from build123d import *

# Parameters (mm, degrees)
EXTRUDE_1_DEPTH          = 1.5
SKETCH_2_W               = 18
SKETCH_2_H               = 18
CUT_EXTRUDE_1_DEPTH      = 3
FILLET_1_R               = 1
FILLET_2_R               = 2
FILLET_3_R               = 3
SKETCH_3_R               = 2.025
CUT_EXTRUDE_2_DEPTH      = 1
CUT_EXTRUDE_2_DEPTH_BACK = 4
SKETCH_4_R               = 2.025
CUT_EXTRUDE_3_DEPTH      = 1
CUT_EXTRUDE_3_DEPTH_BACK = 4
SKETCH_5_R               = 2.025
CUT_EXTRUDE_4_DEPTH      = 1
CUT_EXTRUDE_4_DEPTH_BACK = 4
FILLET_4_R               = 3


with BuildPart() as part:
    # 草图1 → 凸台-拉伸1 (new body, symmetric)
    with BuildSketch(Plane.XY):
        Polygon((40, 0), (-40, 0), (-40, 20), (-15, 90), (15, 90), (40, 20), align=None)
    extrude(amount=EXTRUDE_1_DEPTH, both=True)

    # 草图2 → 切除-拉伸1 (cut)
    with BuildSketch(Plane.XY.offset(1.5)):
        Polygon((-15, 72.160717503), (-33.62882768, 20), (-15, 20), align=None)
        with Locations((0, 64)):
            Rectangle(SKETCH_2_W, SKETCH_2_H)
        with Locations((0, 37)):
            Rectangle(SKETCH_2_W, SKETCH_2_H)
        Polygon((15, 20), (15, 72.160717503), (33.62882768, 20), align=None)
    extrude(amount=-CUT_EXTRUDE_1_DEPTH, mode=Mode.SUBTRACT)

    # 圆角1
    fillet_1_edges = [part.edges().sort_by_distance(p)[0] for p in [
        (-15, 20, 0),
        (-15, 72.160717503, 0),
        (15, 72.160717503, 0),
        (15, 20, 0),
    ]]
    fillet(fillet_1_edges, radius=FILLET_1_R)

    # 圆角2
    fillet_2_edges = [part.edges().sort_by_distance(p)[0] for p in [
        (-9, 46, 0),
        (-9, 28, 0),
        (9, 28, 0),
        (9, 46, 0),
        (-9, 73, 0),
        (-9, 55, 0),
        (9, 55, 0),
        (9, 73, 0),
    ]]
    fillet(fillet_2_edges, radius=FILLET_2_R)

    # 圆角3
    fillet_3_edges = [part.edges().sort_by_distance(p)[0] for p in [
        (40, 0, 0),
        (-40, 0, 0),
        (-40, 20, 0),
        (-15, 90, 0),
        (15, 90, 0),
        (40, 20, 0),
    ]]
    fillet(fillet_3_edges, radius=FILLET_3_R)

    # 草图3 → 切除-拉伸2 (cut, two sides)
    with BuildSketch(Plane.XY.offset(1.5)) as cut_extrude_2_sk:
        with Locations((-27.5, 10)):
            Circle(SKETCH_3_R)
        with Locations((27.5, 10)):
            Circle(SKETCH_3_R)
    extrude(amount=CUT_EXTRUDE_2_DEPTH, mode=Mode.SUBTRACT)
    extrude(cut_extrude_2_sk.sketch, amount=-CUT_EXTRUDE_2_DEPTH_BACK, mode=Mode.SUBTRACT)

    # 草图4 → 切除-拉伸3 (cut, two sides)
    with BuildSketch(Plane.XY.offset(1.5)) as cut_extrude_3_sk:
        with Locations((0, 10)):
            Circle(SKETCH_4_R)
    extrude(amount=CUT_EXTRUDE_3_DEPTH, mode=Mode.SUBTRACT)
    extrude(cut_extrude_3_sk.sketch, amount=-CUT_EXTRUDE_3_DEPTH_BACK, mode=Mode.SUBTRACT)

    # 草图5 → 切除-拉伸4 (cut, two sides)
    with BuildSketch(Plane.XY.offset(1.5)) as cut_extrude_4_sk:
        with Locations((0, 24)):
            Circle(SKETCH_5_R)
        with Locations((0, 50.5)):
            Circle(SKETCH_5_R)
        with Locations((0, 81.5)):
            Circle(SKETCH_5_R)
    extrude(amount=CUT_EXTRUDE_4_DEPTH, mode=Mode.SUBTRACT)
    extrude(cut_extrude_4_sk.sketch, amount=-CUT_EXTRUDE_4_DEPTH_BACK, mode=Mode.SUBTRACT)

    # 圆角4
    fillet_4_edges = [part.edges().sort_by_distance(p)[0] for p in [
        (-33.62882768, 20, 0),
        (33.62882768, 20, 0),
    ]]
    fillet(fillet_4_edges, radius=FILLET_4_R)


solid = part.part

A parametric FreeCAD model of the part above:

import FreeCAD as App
import Part
import Sketcher
from FreeCAD import Vector


def edges_at(feature, points):
    """Names of the edges that pass closest to the given points."""
    edges = feature.Shape.Edges
    near = lambda p: min(range(len(edges)), key=lambda i: edges[i].distToShape(Part.Vertex(*p))[0])
    return sorted({f"Edge{near(p) + 1}" for p in points})


def add_polygon(sketch, points):
    """Adds a closed chain of lines whose ends are joined by coincident constraints."""
    first, n = sketch.GeometryCount, len(points)
    for a, b in zip(points, points[1:] + points[:1]):
        sketch.addGeometry(Part.LineSegment(App.Vector(*a, 0), App.Vector(*b, 0)), False)
    for i in range(n):
        sketch.addConstraint(Sketcher.Constraint("Coincident", first + i, 2, first + (i + 1) % n, 1))

doc = App.newDocument("Part")
body = doc.addObject("PartDesign::Body", "Body")

# Sketch on XY plane
sketch1 = body.newObject("Sketcher::SketchObject", "Sketch")
sketch1.AttachmentSupport = (doc.getObject("XY_Plane"), [""])
sketch1.MapMode = "FlatFace"
add_polygon(sketch1, [(-40, 0), (40, 0), (40, 20), (15, 90), (-15, 90), (-40, 20)])  # lines 0-5
sketch1.addConstraint(Sketcher.Constraint("Horizontal", 0))
sketch1.addConstraint(Sketcher.Constraint("Vertical", 1))
sketch1.addConstraint(Sketcher.Constraint("Horizontal", 3))
sketch1.addConstraint(Sketcher.Constraint("Vertical", 5))
sketch1.addConstraint(Sketcher.Constraint("Symmetric", 0, 2, 5, 2, -1, 1))
sketch1.addConstraint(Sketcher.Constraint("Horizontal", 1, 2, 4, 2))
sketch1.addConstraint(Sketcher.Constraint("Equal", 2, 4))
sketch1.addConstraint(Sketcher.Constraint("DistanceX", 0, 1, 0, 2, 80.0))
sketch1.addConstraint(Sketcher.Constraint("DistanceX", 3, 2, 3, 1, 30.0))
sketch1.addConstraint(Sketcher.Constraint("DistanceY", 1, 1, 1, 2, 20.0))
sketch1.addConstraint(Sketcher.Constraint("DistanceY", -1, 1, 2, 2, 90.0))
pad1 = body.newObject("PartDesign::Pad", "Pad")
pad1.Profile = sketch1
pad1.Length = 3
pad1.Midplane = True

# Sketch on XY plane
sketch2 = body.newObject("Sketcher::SketchObject", "Sketch001")
sketch2.AttachmentSupport = (doc.getObject("XY_Plane"), [""])
sketch2.MapMode = "FlatFace"
sketch2.AttachmentOffset = App.Placement(Vector(0, 0, 1.5), App.Rotation())
add_polygon(sketch2, [(-15, 72), (-34, 20), (-15, 20)])  # lines 0-2
add_polygon(sketch2, [(-9, 73), (-9, 55), (9, 55), (9, 73)])  # lines 3-6
add_polygon(sketch2, [(-9, 46), (-9, 28), (9, 28), (9, 46)])  # lines 7-10
add_polygon(sketch2, [(15, 72), (15, 20), (34, 20)])  # lines 11-13
sketch2.addConstraint(Sketcher.Constraint("Horizontal", 1))
sketch2.addConstraint(Sketcher.Constraint("Vertical", 2))
sketch2.addConstraint(Sketcher.Constraint("Vertical", 3))
sketch2.addConstraint(Sketcher.Constraint("Horizontal", 4))
sketch2.addConstraint(Sketcher.Constraint("Vertical", 5))
sketch2.addConstraint(Sketcher.Constraint("Horizontal", 6))
sketch2.addConstraint(Sketcher.Constraint("Vertical", 7))
sketch2.addConstraint(Sketcher.Constraint("Horizontal", 8))
sketch2.addConstraint(Sketcher.Constraint("Vertical", 9))
sketch2.addConstraint(Sketcher.Constraint("Horizontal", 10))
sketch2.addConstraint(Sketcher.Constraint("Vertical", 11))
sketch2.addConstraint(Sketcher.Constraint("Horizontal", 12))
sketch2.addConstraint(Sketcher.Constraint("Symmetric", 1, 2, 11, 2, -2))
sketch2.addConstraint(Sketcher.Constraint("Horizontal", 2, 2, 13, 2))
sketch2.addConstraint(Sketcher.Constraint("Vertical", 6, 2, 7, 2))
sketch2.addConstraint(Sketcher.Constraint("Vertical", 5, 2, 8, 2))
sketch2.addConstraint(Sketcher.Constraint("Equal", 1, 12))
sketch2.addConstraint(Sketcher.Constraint("Equal", 10, 3))
sketch2.addConstraint(Sketcher.Constraint("Equal", 5, 7))
sketch2.addConstraint(Sketcher.Constraint("DistanceX", 4, 1, 4, 2, 18.0))
sketch2.addConstraint(Sketcher.Constraint("DistanceY", -1, 1, 0, 2, 20.0))
sketch2.addConstraint(Sketcher.Constraint("DistanceX", 1, 2, -1, 1, 15.0))
sketch2.addConstraint(Sketcher.Constraint("DistanceX", 3, 2, -1, 1, 9.0))
sketch2.addConstraint(Sketcher.Constraint("DistanceY", -1, 1, 3, 2, 55.0))
sketch2.addConstraint(Sketcher.Constraint("DistanceY", -1, 1, 7, 2, 28.0))
sketch2.addConstraint(Sketcher.Constraint("DistanceX", 1, 1, 1, 2, 18.628828))
sketch2.addConstraint(Sketcher.Constraint("DistanceY", 2, 1, 2, 2, 52.160718))
pocket1 = body.newObject("PartDesign::Pocket", "Pocket")
pocket1.Profile = sketch2
pocket1.Length = 3
doc.recompute()

fillet = body.newObject("PartDesign::Fillet", "Fillet")
fillet.Base = (pocket1, edges_at(pocket1, [
    (-15, 20, 0),
    (-15, 72.161, 0),
    (15, 72.161, 0),
    (15, 20, 0),
]))
fillet.Radius = 1
doc.recompute()

fillet2 = body.newObject("PartDesign::Fillet", "Fillet001")
fillet2.Base = (fillet, edges_at(fillet, [
    (-9, 46, 0),
    (-9, 28, 0),
    (9, 28, 0),
    (9, 46, 0),
    (-9, 73, 0),
    (-9, 55, 0),
    (9, 55, 0),
    (9, 73, 0),
]))
fillet2.Radius = 2
doc.recompute()

fillet3 = body.newObject("PartDesign::Fillet", "Fillet002")
fillet3.Base = (fillet2, edges_at(fillet2, [
    (40, 0, 0),
    (-40, 0, 0),
    (-40, 20, 0),
    (-15, 90, 0),
    (15, 90, 0),
    (40, 20, 0),
]))
fillet3.Radius = 3

# Sketch on XY plane
sketch3 = body.newObject("Sketcher::SketchObject", "Sketch002")
sketch3.AttachmentSupport = (doc.getObject("XY_Plane"), [""])
sketch3.MapMode = "FlatFace"
sketch3.AttachmentOffset = App.Placement(Vector(0, 0, 1.5), App.Rotation())
sketch3.addGeometry(Part.Circle(Vector(-27.5, 10, 0), Vector(0, 0, 1), 2), False)
sketch3.addGeometry(Part.Circle(Vector(27.5, 10, 0), Vector(0, 0, 1), 2), False)
sketch3.addConstraint(Sketcher.Constraint("Equal", 0, 1))
sketch3.addConstraint(Sketcher.Constraint("Symmetric", 0, 3, 1, 3, -2))
sketch3.addConstraint(Sketcher.Constraint("Diameter", 0, 4.05))
sketch3.addConstraint(Sketcher.Constraint("DistanceY", -1, 1, 0, 3, 10.0))
sketch3.addConstraint(Sketcher.Constraint("DistanceX", 0, 3, 1, 3, 55.0))
pocket2 = body.newObject("PartDesign::Pocket", "Pocket001")
pocket2.Profile = sketch3
pocket2.Type = "ThroughAll"
pocket2.Midplane = True

# Sketch on XY plane
sketch4 = body.newObject("Sketcher::SketchObject", "Sketch003")
sketch4.AttachmentSupport = (doc.getObject("XY_Plane"), [""])
sketch4.MapMode = "FlatFace"
sketch4.AttachmentOffset = App.Placement(Vector(0, 0, 1.5), App.Rotation())
sketch4.addGeometry(Part.Circle(Vector(0, 10, 0), Vector(0, 0, 1), 2), False)
sketch4.addConstraint(Sketcher.Constraint("PointOnObject", 0, 3, -2))
sketch4.addConstraint(Sketcher.Constraint("Diameter", 0, 4.05))
sketch4.addConstraint(Sketcher.Constraint("DistanceY", -1, 1, 0, 3, 10.0))
pocket3 = body.newObject("PartDesign::Pocket", "Pocket002")
pocket3.Profile = sketch4
pocket3.Type = "ThroughAll"
pocket3.Midplane = True

# Sketch on XY plane
sketch5 = body.newObject("Sketcher::SketchObject", "Sketch004")
sketch5.AttachmentSupport = (doc.getObject("XY_Plane"), [""])
sketch5.MapMode = "FlatFace"
sketch5.AttachmentOffset = App.Placement(Vector(0, 0, 1.5), App.Rotation())
sketch5.addGeometry(Part.Circle(Vector(0, 24, 0), Vector(0, 0, 1), 2), False)
sketch5.addGeometry(Part.Circle(Vector(0, 50.5, 0), Vector(0, 0, 1), 2), False)
sketch5.addGeometry(Part.Circle(Vector(0, 81.5, 0), Vector(0, 0, 1), 2), False)
sketch5.addConstraint(Sketcher.Constraint("Equal", 0, 1))
sketch5.addConstraint(Sketcher.Constraint("Equal", 1, 2))
sketch5.addConstraint(Sketcher.Constraint("PointOnObject", 0, 3, -2))
sketch5.addConstraint(Sketcher.Constraint("PointOnObject", 1, 3, -2))
sketch5.addConstraint(Sketcher.Constraint("PointOnObject", 2, 3, -2))
sketch5.addConstraint(Sketcher.Constraint("Diameter", 0, 4.05))
sketch5.addConstraint(Sketcher.Constraint("DistanceY", -1, 1, 0, 3, 24.0))
sketch5.addConstraint(Sketcher.Constraint("DistanceY", 1, 3, 2, 3, 31.0))
sketch5.addConstraint(Sketcher.Constraint("DistanceY", -1, 1, 1, 3, 50.5))
pocket4 = body.newObject("PartDesign::Pocket", "Pocket003")
pocket4.Profile = sketch5
pocket4.Type = "ThroughAll"
pocket4.Midplane = True
doc.recompute()

fillet4 = body.newObject("PartDesign::Fillet", "Fillet003")
fillet4.Base = (pocket4, edges_at(pocket4, [(-33.629, 20, 0), (33.629, 20, 0)]))
fillet4.Radius = 3

doc.recompute()
